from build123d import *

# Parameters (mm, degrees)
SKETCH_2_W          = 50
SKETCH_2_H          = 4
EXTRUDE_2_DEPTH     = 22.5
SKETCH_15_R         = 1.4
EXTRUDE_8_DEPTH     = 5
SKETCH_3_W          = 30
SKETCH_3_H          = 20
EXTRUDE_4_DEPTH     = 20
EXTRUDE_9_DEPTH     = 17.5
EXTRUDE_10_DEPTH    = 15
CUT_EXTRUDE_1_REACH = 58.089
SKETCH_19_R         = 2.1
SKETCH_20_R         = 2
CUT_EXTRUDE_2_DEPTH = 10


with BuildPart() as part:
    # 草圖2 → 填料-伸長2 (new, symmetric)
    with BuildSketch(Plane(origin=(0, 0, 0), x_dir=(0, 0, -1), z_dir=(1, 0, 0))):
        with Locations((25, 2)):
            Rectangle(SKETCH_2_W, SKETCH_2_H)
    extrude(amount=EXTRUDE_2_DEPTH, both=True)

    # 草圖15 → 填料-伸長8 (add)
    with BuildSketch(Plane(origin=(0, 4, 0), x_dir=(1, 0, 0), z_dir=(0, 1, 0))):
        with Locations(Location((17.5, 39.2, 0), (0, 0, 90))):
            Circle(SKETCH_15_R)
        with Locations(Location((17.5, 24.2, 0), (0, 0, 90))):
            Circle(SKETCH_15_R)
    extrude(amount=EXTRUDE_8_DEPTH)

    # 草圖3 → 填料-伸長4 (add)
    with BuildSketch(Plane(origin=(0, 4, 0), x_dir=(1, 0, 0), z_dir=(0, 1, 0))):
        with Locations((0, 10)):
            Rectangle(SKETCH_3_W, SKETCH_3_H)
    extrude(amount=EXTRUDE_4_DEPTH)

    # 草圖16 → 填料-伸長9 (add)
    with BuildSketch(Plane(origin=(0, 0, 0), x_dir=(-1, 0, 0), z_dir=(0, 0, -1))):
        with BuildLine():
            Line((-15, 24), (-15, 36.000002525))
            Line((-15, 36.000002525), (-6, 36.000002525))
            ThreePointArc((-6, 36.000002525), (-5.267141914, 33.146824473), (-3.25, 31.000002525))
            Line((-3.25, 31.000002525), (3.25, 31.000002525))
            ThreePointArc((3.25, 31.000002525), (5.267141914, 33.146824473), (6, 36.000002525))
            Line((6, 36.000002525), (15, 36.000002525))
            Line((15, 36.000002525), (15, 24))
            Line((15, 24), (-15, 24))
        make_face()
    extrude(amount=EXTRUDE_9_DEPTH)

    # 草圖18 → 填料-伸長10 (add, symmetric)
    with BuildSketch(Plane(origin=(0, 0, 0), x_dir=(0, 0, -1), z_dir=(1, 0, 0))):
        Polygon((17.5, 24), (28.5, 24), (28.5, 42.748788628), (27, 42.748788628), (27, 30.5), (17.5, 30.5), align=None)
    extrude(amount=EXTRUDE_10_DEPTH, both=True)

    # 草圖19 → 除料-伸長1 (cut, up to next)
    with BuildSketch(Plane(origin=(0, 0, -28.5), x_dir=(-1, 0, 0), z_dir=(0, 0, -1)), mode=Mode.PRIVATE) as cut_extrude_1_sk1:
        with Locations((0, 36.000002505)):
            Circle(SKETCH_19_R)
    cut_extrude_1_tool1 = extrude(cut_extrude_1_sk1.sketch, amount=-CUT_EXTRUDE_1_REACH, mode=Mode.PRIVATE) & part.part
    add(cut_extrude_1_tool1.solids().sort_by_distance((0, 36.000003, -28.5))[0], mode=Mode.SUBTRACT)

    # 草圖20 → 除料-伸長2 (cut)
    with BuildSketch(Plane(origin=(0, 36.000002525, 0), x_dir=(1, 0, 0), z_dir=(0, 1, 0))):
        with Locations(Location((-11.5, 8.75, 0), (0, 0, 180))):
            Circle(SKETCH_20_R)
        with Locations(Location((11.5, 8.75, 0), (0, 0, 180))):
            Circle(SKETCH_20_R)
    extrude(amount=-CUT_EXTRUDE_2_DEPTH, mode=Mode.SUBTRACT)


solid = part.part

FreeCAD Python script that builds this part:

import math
import FreeCAD as App
import Part
import Sketcher
Q = App.Units.Quantity

doc = App.newDocument("Part")
body = doc.addObject("PartDesign::Body", "Body")

sketch1 = body.newObject("Sketcher::SketchObject", "Sketch")
sketch1.AttachmentSupport = (doc.getObject("YZ_Plane"), [""])
sketch1.MapMode = "FlatFace"
sketch1.addGeometry(Part.LineSegment(App.Vector(4, 0, 0), App.Vector(0, 0, 0)), False)
sketch1.addGeometry(Part.LineSegment(App.Vector(0, 0, 0), App.Vector(0, -50, 0)), False)
sketch1.addGeometry(Part.LineSegment(App.Vector(0, -50, 0), App.Vector(4, -50, 0)), False)
sketch1.addGeometry(Part.LineSegment(App.Vector(4, -50, 0), App.Vector(4, 0, 0)), False)
sketch1.addConstraint(Sketcher.Constraint("Coincident", 0, 2, 1, 1))
sketch1.addConstraint(Sketcher.Constraint("Coincident", 1, 2, 2, 1))
sketch1.addConstraint(Sketcher.Constraint("Coincident", 2, 2, 3, 1))
sketch1.addConstraint(Sketcher.Constraint("Coincident", 3, 2, 0, 1))
sketch1.addConstraint(Sketcher.Constraint("Horizontal", 0))
sketch1.addConstraint(Sketcher.Constraint("Vertical", 1))
sketch1.addConstraint(Sketcher.Constraint("Horizontal", 2))
sketch1.addConstraint(Sketcher.Constraint("Vertical", 3))
sketch1.addConstraint(Sketcher.Constraint("Coincident", 0, 2, -1, 1))
sketch1.addConstraint(Sketcher.Constraint("DistanceX", 0, 2, 0, 1, Q("4 mm")))
sketch1.addConstraint(Sketcher.Constraint("DistanceY", 1, 2, 1, 1, Q("50 mm")))
pad1 = body.newObject("PartDesign::Pad", "Pad")
pad1.Profile = sketch1
pad1.Length = 45
pad1.Midplane = True

sketch2 = body.newObject("Sketcher::SketchObject", "Sketch001")
sketch2.AttachmentSupport = (doc.getObject("XZ_Plane"), [""])
sketch2.MapMode = "FlatFace"
sketch2.AttachmentOffset = App.Placement(App.Vector(0, 0, -4), App.Rotation())
sketch2.addGeometry(Part.Circle(App.Vector(17.5, -39.2, 0), App.Vector(0, 0, 1), 1.4), False)
sketch2.addGeometry(Part.Circle(App.Vector(17.5, -24.2, 0), App.Vector(0, 0, 1), 1.4), False)
sketch2.addConstraint(Sketcher.Constraint("Equal", 0, 1))
sketch2.addConstraint(Sketcher.Constraint("Vertical", 0, 3, 1, 3))
sketch2.addConstraint(Sketcher.Constraint("Diameter", 0, Q("2.8 mm")))
sketch2.addConstraint(Sketcher.Constraint("DistanceY", 0, 3, 1, 3, Q("15 mm")))
sketch2.addConstraint(Sketcher.Constraint("DistanceX", -1, 1, 0, 3, Q("17.5 mm")))
sketch2.addConstraint(Sketcher.Constraint("DistanceY", 0, 3, -1, 1, Q("39.2 mm")))
pad2 = body.newObject("PartDesign::Pad", "Pad001")
pad2.Profile = sketch2
pad2.Length = 5
pad2.Reversed = True

sketch3 = body.newObject("Sketcher::SketchObject", "Sketch002")
sketch3.AttachmentSupport = (doc.getObject("XZ_Plane"), [""])
sketch3.MapMode = "FlatFace"
sketch3.AttachmentOffset = App.Placement(App.Vector(0, 0, -4), App.Rotation())
sketch3.addGeometry(Part.LineSegment(App.Vector(-15, -20, 0), App.Vector(-15, 0, 0)), False)
sketch3.addGeometry(Part.LineSegment(App.Vector(-15, 0, 0), App.Vector(15, 0, 0)), False)
sketch3.addGeometry(Part.LineSegment(App.Vector(15, 0, 0), App.Vector(15, -20, 0)), False)
sketch3.addGeometry(Part.LineSegment(App.Vector(15, -20, 0), App.Vector(-15, -20, 0)), False)
sketch3.addConstraint(Sketcher.Constraint("Coincident", 0, 2, 1, 1))
sketch3.addConstraint(Sketcher.Constraint("Coincident", 1, 2, 2, 1))
sketch3.addConstraint(Sketcher.Constraint("Coincident", 2, 2, 3, 1))
sketch3.addConstraint(Sketcher.Constraint("Coincident", 3, 2, 0, 1))
sketch3.addConstraint(Sketcher.Constraint("Vertical", 0))
sketch3.addConstraint(Sketcher.Constraint("Horizontal", 1))
sketch3.addConstraint(Sketcher.Constraint("Vertical", 2))
sketch3.addConstraint(Sketcher.Constraint("Horizontal", 3))
sketch3.addConstraint(Sketcher.Constraint("Symmetric", 0, 2, 1, 2, -1, 1))
sketch3.addConstraint(Sketcher.Constraint("DistanceX", 1, 1, 1, 2, Q("30 mm")))
sketch3.addConstraint(Sketcher.Constraint("DistanceY", 0, 1, 0, 2, Q("20 mm")))
pad3 = body.newObject("PartDesign::Pad", "Pad002")
pad3.Profile = sketch3
pad3.Length = 20
pad3.Reversed = True

sketch4 = body.newObject("Sketcher::SketchObject", "Sketch003")
sketch4.AttachmentSupport = (doc.getObject("XY_Plane"), [""])
sketch4.MapMode = "FlatFace"
sketch4.addGeometry(Part.LineSegment(App.Vector(15, 36.000003, 0), App.Vector(15, 24, 0)), False)
sketch4.addGeometry(Part.LineSegment(App.Vector(15, 24, 0), App.Vector(-15, 24, 0)), False)
sketch4.addGeometry(Part.LineSegment(App.Vector(-15, 24, 0), App.Vector(-15, 36.000003, 0)), False)
sketch4.addGeometry(Part.LineSegment(App.Vector(-15, 36.000003, 0), App.Vector(-6, 36.000003, 0)), False)
sketch4.addGeometry(Part.ArcOfCircle(Part.Circle(App.Vector(-0.079545, 36.000003, 0), App.Vector(0, 0, 1), 5.920455), math.radians(-180), math.radians(-122.378413)), False)
sketch4.addGeometry(Part.LineSegment(App.Vector(-3.25, 31.000003, 0), App.Vector(3.25, 31.000003, 0)), False)
sketch4.addGeometry(Part.ArcOfCircle(Part.Circle(App.Vector(0.079545, 36.000003, 0), App.Vector(0, 0, 1), 5.920455), math.radians(-57.621587), math.radians(0)), False)
sketch4.addGeometry(Part.LineSegment(App.Vector(6, 36.000003, 0), App.Vector(15, 36.000003, 0)), False)
sketch4.addConstraint(Sketcher.Constraint("Coincident", 0, 2, 1, 1))
sketch4.addConstraint(Sketcher.Constraint("Coincident", 1, 2, 2, 1))
sketch4.addConstraint(Sketcher.Constraint("Coincident", 2, 2, 3, 1))
sketch4.addConstraint(Sketcher.Constraint("Coincident", 3, 2, 4, 1))
sketch4.addConstraint(Sketcher.Constraint("Coincident", 4, 2, 5, 1))
sketch4.addConstraint(Sketcher.Constraint("Coincident", 5, 2, 6, 1))
sketch4.addConstraint(Sketcher.Constraint("Coincident", 6, 2, 7, 1))
sketch4.addConstraint(Sketcher.Constraint("Coincident", 7, 2, 0, 1))
sketch4.addConstraint(Sketcher.Constraint("Vertical", 0))
sketch4.addConstraint(Sketcher.Constraint("Horizontal", 1))
sketch4.addConstraint(Sketcher.Constraint("Vertical", 2))
sketch4.addConstraint(Sketcher.Constraint("Horizontal", 3))
sketch4.addConstraint(Sketcher.Constraint("Horizontal", 5))
sketch4.addConstraint(Sketcher.Constraint("Horizontal", 7))
sketch4.addConstraint(Sketcher.Constraint("Equal", 4, 6))
sketch4.addConstraint(Sketcher.Constraint("Symmetric", 4, 3, 6, 3, -2))
sketch4.addConstraint(Sketcher.Constraint("Symmetric", 2, 2, 7, 2, -2))
sketch4.addConstraint(Sketcher.Constraint("Horizontal", 6, 3, 2, 2))
sketch4.addConstraint(Sketcher.Constraint("DistanceX", 1, 2, 1, 1, Q("30 mm")))
sketch4.addConstraint(Sketcher.Constraint("DistanceX", 3, 1, 3, 2, Q("9 mm")))
sketch4.addConstraint(Sketcher.Constraint("DistanceX", 5, 1, 5, 2, Q("6.5 mm")))
sketch4.addConstraint(Sketcher.Constraint("DistanceY", -1, 1, 0, 2, Q("24 mm")))
sketch4.addConstraint(Sketcher.Constraint("DistanceY", 4, 2, 3, 2, Q("5 mm")))
sketch4.addConstraint(Sketcher.Constraint("DistanceY", 0, 2, 0, 1, Q("12.000003 mm")))
pad4 = body.newObject("PartDesign::Pad", "Pad003")
pad4.Profile = sketch4
pad4.Length = 17.5
pad4.Reversed = True

sketch5 = body.newObject("Sketcher::SketchObject", "Sketch004")
sketch5.AttachmentSupport = (doc.getObject("YZ_Plane"), [""])
sketch5.MapMode = "FlatFace"
sketch5.addGeometry(Part.LineSegment(App.Vector(24, -17.5, 0), App.Vector(24, -28.5, 0)), False)
sketch5.addGeometry(Part.LineSegment(App.Vector(24, -28.5, 0), App.Vector(42.7, -28.5, 0)), False)
sketch5.addGeometry(Part.LineSegment(App.Vector(42.7, -28.5, 0), App.Vector(42.7, -27, 0)), False)
sketch5.addGeometry(Part.LineSegment(App.Vector(42.7, -27, 0), App.Vector(30.5, -27, 0)), False)
sketch5.addGeometry(Part.LineSegment(App.Vector(30.5, -27, 0), App.Vector(30.5, -17.5, 0)), False)
sketch5.addGeometry(Part.LineSegment(App.Vector(30.5, -17.5, 0), App.Vector(24, -17.5, 0)), False)
sketch5.addConstraint(Sketcher.Constraint("Coincident", 0, 2, 1, 1))
sketch5.addConstraint(Sketcher.Constraint("Coincident", 1, 2, 2, 1))
sketch5.addConstraint(Sketcher.Constraint("Coincident", 2, 2, 3, 1))
sketch5.addConstraint(Sketcher.Constraint("Coincident", 3, 2, 4, 1))
sketch5.addConstraint(Sketcher.Constraint("Coincident", 4, 2, 5, 1))
sketch5.addConstraint(Sketcher.Constraint("Coincident", 5, 2, 0, 1))
sketch5.addConstraint(Sketcher.Constraint("Vertical", 0))
sketch5.addConstraint(Sketcher.Constraint("Horizontal", 1))
sketch5.addConstraint(Sketcher.Constraint("Vertical", 2))
sketch5.addConstraint(Sketcher.Constraint("Horizontal", 3))
sketch5.addConstraint(Sketcher.Constraint("Vertical", 4))
sketch5.addConstraint(Sketcher.Constraint("Horizontal", 5))
sketch5.addConstraint(Sketcher.Constraint("DistanceY", 0, 2, 0, 1, Q("11 mm")))
sketch5.addConstraint(Sketcher.Constraint("DistanceX", 5, 2, 5, 1, Q("6.5 mm")))
sketch5.addConstraint(Sketcher.Constraint("DistanceY", 2, 1, 2, 2, Q("1.5 mm")))
sketch5.addConstraint(Sketcher.Constraint("DistanceX", -1, 1, 0, 2, Q("24 mm")))
sketch5.addConstraint(Sketcher.Constraint("DistanceY", 2, 2, -1, 1, Q("27 mm")))
sketch5.addConstraint(Sketcher.Constraint("DistanceX", 1, 1, 1, 2, Q("18.748789 mm")))
pad5 = body.newObject("PartDesign::Pad", "Pad004")
pad5.Profile = sketch5
pad5.Length = 30
pad5.Midplane = True

sketch6 = body.newObject("Sketcher::SketchObject", "Sketch005")
sketch6.AttachmentSupport = (doc.getObject("XY_Plane"), [""])
sketch6.MapMode = "FlatFace"
sketch6.AttachmentOffset = App.Placement(App.Vector(0, 0, -28.5), App.Rotation())
sketch6.addGeometry(Part.Circle(App.Vector(0, 36, 0), App.Vector(0, 0, 1), 2.1), False)
sketch6.addConstraint(Sketcher.Constraint("PointOnObject", 0, 3, -2))
sketch6.addConstraint(Sketcher.Constraint("Diameter", 0, Q("4.2 mm")))
sketch6.addConstraint(Sketcher.Constraint("DistanceY", -1, 1, 0, 3, Q("36.000003 mm")))
pocket1 = body.newObject("PartDesign::Pocket", "Pocket")
pocket1.Profile = sketch6
pocket1.Type = "UpToFirst"
pocket1.Reversed = True

sketch7 = body.newObject("Sketcher::SketchObject", "Sketch006")
sketch7.AttachmentSupport = (doc.getObject("XZ_Plane"), [""])
sketch7.MapMode = "FlatFace"
sketch7.AttachmentOffset = App.Placement(App.Vector(0, 0, -36.000003), App.Rotation())
sketch7.addGeometry(Part.Circle(App.Vector(-11.5, -8.8, 0), App.Vector(0, 0, 1), 2), False)
sketch7.addGeometry(Part.Circle(App.Vector(11.5, -8.8, 0), App.Vector(0, 0, 1), 2), False)
sketch7.addConstraint(Sketcher.Constraint("Equal", 0, 1))
sketch7.addConstraint(Sketcher.Constraint("Symmetric", 0, 3, 1, 3, -2))
sketch7.addConstraint(Sketcher.Constraint("Diameter", 0, Q("4 mm")))
sketch7.addConstraint(Sketcher.Constraint("DistanceX", 0, 3, 1, 3, Q("23 mm")))
sketch7.addConstraint(Sketcher.Constraint("DistanceY", 0, 3, -1, 1, Q("8.75 mm")))
pocket2 = body.newObject("PartDesign::Pocket", "Pocket001")
pocket2.Profile = sketch7
pocket2.Length = 10
pocket2.Reversed = True

doc.recompute()
